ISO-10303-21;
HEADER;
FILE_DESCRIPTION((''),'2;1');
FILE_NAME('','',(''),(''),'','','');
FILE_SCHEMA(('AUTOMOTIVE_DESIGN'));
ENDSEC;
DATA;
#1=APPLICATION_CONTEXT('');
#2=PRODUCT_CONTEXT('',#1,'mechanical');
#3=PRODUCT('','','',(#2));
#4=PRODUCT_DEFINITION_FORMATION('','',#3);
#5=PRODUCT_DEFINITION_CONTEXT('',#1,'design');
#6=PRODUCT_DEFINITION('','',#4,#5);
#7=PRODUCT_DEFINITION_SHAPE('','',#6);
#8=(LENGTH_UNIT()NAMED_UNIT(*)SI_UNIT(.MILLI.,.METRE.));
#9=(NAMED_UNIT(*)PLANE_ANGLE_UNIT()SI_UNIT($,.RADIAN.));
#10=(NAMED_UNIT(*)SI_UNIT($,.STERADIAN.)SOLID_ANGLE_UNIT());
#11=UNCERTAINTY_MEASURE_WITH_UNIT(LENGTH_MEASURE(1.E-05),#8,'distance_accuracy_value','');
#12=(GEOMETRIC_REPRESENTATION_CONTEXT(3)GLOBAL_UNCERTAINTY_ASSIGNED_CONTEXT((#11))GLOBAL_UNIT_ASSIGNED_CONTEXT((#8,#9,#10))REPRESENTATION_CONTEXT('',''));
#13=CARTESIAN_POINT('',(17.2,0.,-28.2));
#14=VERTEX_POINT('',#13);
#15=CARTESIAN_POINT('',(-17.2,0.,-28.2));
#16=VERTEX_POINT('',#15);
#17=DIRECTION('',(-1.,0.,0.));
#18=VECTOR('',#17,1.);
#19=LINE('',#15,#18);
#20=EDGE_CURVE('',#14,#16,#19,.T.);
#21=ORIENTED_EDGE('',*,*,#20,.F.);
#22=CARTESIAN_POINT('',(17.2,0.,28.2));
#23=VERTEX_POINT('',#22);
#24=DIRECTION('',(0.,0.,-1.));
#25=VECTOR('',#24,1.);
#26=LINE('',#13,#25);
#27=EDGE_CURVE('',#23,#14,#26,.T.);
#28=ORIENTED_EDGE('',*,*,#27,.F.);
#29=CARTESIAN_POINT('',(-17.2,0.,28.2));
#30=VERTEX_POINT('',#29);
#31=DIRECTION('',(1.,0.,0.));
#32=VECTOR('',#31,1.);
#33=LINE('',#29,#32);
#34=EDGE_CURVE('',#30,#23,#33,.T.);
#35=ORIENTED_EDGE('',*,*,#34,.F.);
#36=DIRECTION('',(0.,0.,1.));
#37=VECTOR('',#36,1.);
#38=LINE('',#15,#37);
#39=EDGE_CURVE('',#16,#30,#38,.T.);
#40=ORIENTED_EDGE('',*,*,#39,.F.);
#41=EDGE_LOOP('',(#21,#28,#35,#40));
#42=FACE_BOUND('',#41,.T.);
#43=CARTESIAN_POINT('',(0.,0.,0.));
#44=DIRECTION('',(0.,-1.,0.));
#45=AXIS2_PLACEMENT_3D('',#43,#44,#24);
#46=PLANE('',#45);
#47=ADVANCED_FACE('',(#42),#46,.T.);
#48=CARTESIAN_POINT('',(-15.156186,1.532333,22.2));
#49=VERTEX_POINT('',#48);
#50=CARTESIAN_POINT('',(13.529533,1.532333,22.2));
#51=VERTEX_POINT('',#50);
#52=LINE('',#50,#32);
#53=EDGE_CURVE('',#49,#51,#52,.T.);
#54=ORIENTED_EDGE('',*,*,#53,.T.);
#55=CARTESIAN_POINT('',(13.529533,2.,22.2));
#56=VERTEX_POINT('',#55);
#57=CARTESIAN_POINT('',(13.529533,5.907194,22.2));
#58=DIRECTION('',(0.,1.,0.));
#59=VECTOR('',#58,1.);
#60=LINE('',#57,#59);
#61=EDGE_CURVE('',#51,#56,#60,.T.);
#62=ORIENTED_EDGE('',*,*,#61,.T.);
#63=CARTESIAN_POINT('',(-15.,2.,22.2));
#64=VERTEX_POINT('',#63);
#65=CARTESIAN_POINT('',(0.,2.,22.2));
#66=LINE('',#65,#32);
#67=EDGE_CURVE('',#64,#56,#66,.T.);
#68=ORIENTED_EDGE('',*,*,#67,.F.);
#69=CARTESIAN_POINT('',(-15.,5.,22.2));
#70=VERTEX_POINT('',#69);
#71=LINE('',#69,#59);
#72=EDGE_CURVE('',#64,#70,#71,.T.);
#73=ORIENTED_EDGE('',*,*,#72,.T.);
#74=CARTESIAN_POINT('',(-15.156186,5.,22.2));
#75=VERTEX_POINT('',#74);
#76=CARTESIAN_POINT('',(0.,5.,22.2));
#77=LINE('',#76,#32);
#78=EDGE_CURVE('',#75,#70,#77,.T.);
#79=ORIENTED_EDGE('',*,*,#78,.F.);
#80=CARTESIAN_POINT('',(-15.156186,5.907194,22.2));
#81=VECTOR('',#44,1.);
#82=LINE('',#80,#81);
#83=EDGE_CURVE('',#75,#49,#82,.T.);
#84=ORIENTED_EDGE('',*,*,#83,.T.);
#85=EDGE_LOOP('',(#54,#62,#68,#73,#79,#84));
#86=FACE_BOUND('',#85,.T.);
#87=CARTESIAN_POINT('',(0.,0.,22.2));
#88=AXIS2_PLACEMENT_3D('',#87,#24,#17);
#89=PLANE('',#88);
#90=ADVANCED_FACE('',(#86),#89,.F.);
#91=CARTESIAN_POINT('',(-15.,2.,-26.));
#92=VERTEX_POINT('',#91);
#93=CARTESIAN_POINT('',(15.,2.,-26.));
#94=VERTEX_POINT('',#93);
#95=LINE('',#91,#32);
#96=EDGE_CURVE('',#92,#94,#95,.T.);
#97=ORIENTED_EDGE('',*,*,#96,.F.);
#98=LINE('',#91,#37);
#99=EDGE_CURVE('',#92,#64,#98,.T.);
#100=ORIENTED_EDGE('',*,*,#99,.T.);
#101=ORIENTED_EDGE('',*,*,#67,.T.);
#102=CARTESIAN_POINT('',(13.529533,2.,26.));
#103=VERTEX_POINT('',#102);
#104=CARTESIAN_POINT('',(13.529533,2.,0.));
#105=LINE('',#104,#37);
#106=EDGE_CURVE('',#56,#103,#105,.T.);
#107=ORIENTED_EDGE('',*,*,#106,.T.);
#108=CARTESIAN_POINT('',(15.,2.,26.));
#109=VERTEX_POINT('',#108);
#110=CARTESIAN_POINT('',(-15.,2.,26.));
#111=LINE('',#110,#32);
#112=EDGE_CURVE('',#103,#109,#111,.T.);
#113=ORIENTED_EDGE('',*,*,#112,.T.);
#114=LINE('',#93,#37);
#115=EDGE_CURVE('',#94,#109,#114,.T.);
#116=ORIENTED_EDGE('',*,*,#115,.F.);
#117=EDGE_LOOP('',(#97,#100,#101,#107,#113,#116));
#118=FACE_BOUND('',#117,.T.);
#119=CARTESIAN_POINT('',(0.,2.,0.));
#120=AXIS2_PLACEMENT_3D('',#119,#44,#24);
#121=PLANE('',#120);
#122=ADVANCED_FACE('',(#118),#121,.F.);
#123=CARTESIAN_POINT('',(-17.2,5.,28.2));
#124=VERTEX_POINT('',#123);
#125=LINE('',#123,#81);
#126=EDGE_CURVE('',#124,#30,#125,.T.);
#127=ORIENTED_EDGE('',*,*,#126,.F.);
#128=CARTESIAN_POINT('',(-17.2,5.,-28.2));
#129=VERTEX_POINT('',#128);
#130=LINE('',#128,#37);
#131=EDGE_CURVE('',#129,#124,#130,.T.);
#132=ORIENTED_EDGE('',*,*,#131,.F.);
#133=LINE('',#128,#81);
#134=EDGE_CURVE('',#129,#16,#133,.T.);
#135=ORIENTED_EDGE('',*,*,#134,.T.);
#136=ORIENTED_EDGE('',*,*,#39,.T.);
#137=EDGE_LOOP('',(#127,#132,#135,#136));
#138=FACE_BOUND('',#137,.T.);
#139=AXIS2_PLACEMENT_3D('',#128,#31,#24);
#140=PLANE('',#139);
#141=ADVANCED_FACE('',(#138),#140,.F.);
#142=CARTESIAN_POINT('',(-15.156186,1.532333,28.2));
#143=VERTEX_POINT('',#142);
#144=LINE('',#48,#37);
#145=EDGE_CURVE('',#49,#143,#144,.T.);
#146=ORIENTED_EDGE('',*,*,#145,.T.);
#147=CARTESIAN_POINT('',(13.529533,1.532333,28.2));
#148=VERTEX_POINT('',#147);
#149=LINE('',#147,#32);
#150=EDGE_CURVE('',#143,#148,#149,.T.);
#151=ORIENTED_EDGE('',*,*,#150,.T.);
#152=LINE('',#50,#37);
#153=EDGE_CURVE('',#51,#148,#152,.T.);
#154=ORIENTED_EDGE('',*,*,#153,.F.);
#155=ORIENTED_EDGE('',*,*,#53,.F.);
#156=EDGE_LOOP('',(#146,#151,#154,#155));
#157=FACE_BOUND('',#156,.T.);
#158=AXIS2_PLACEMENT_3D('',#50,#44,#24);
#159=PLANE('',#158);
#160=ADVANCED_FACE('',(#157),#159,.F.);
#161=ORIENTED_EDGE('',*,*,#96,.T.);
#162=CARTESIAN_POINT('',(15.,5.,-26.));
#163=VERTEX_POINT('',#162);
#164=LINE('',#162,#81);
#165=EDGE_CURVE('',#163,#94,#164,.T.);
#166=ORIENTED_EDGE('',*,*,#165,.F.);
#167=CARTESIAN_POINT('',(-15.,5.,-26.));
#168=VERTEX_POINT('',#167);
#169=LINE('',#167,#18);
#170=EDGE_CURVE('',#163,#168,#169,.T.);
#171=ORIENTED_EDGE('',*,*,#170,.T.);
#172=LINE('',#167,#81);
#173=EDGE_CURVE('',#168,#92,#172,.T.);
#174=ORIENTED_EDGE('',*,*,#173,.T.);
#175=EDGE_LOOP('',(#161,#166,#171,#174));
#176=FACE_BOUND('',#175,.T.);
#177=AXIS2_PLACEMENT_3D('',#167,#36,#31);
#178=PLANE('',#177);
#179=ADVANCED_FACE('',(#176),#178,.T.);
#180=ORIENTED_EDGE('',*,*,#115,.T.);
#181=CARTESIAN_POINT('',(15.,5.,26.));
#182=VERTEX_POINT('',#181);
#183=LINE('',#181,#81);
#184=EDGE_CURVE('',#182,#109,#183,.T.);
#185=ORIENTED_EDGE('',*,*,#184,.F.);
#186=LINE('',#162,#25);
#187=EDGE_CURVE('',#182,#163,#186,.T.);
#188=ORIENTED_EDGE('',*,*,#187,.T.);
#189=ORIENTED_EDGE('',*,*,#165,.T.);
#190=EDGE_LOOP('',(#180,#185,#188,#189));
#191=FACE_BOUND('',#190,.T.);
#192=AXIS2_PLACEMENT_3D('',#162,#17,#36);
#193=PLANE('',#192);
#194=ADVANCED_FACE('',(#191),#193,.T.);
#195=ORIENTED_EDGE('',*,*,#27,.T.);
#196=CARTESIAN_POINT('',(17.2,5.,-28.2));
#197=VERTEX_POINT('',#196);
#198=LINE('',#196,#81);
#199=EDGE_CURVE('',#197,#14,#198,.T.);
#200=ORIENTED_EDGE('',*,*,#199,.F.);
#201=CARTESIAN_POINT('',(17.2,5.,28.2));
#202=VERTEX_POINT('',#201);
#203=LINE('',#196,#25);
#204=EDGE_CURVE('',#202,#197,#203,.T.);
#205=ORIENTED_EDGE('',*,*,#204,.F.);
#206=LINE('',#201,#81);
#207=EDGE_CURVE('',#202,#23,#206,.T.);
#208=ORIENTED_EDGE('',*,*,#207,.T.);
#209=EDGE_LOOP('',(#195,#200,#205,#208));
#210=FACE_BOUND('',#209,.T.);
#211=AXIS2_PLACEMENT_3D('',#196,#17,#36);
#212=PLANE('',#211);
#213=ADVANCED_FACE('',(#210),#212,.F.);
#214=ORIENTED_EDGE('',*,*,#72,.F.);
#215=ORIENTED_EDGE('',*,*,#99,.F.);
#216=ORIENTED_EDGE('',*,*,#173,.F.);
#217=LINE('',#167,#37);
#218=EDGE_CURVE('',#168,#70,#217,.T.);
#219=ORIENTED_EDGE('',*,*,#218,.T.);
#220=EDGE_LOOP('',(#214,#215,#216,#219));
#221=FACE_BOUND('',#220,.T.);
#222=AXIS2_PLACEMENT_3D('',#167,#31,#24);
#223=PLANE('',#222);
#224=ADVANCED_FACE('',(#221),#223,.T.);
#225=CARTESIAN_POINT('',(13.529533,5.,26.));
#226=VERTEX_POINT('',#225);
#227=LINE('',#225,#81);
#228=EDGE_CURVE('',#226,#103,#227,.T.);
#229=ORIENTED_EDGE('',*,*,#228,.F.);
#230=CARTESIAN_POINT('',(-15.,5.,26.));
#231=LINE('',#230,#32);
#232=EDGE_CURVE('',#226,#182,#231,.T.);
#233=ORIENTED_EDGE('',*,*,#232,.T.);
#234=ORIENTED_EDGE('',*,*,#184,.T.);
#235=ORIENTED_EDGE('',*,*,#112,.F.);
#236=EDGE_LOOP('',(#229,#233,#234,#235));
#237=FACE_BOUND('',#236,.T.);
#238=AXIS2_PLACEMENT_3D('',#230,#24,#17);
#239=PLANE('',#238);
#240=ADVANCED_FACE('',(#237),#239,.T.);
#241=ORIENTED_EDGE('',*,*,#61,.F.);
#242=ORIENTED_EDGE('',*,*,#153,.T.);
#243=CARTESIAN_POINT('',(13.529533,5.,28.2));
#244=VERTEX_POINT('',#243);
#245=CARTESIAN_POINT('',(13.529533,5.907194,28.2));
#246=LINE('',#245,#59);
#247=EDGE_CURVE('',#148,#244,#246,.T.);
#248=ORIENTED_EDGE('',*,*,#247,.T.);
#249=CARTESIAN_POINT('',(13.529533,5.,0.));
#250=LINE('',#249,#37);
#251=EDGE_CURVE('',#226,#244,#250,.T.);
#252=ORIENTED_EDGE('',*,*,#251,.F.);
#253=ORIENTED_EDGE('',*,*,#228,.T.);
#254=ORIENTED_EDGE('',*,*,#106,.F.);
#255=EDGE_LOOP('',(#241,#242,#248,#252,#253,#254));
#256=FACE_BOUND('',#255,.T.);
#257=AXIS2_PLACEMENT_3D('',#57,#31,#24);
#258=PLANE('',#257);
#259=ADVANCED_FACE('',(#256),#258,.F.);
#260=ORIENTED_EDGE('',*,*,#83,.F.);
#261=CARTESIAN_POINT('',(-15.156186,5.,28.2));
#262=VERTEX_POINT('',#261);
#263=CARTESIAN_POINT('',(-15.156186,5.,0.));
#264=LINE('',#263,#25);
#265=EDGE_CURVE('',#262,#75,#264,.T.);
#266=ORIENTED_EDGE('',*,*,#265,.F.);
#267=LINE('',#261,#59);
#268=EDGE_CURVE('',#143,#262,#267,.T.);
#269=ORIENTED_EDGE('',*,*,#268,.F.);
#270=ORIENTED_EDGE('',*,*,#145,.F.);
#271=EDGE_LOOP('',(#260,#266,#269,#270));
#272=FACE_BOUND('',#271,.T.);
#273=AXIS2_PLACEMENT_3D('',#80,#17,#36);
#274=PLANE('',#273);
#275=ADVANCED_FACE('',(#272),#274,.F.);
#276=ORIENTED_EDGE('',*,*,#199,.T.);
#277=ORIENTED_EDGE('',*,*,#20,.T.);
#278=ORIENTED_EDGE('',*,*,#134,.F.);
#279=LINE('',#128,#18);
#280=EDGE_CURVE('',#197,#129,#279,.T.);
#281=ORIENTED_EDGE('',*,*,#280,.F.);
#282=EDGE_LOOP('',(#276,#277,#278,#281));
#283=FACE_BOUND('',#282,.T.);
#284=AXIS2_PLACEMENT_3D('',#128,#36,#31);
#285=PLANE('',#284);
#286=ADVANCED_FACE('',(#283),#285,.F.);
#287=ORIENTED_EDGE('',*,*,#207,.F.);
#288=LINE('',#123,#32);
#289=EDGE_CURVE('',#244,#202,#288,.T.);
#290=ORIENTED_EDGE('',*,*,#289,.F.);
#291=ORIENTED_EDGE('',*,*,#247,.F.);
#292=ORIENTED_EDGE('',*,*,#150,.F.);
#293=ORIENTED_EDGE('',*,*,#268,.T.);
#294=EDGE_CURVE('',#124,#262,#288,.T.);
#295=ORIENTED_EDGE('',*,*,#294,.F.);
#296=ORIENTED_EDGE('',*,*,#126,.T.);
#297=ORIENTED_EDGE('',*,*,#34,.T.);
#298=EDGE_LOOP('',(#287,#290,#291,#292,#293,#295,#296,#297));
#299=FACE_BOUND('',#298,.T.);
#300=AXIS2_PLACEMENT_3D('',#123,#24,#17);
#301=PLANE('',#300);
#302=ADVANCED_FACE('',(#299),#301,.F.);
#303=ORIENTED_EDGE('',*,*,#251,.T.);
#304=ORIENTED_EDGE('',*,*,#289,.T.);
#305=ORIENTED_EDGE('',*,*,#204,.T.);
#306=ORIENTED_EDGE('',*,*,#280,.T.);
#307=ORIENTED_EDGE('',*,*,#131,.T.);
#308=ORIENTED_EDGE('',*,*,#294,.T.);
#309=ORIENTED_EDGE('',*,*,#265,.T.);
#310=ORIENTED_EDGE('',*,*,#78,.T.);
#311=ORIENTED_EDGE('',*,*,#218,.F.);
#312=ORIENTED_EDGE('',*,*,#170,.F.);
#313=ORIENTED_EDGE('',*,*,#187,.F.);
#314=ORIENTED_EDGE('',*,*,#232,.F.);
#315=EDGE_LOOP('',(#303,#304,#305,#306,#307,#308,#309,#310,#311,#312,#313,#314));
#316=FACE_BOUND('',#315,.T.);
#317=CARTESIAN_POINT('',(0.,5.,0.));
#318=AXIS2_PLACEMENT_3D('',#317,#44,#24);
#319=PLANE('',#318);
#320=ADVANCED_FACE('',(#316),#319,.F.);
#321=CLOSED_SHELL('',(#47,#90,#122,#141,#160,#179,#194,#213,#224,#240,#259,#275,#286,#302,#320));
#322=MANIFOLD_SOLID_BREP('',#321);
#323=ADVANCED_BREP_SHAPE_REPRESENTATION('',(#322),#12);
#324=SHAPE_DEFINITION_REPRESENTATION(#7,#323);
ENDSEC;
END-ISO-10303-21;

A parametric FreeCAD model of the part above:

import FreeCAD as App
import Part
import Sketcher
Q = App.Units.Quantity

doc = App.newDocument("Part")
params = doc.addObject("Spreadsheet::Sheet", "Params")
for row, (alias, value) in enumerate([
    ("sketch1_width", "30 mm"),
    ("sketch1_height", "52 mm"),
    ("pad1_length", "2 mm"),
    ("sketch2_width", "30 mm"),
    ("sketch2_height", "52 mm"),
    ("sketch2_width2", "34.4 mm"),
    ("sketch2_height2", "56.4 mm"),
    ("pad2_length", "5 mm"),
    ("pocket1_length", "6 mm"),
], start=1):
    params.set(f"A{row}", alias)
    params.set(f"B{row}", "=" + value)
    params.setAlias(f"B{row}", alias)

body = doc.addObject("PartDesign::Body", "Body")

# Sketch on XZ plane
sketch1 = body.newObject("Sketcher::SketchObject", "Sketch")
sketch1.AttachmentSupport = (doc.getObject("XZ_Plane"), [""])
sketch1.MapMode = "FlatFace"
sketch1.addGeometry(Part.LineSegment(App.Vector(-15, -26, 0), App.Vector(-15, 26, 0)), False)
sketch1.addGeometry(Part.LineSegment(App.Vector(-15, 26, 0), App.Vector(15, 26, 0)), False)
sketch1.addGeometry(Part.LineSegment(App.Vector(15, 26, 0), App.Vector(15, -26, 0)), False)
sketch1.addGeometry(Part.LineSegment(App.Vector(15, -26, 0), App.Vector(-15, -26, 0)), False)
sketch1.addConstraint(Sketcher.Constraint("Coincident", 0, 2, 1, 1))
sketch1.addConstraint(Sketcher.Constraint("Coincident", 1, 2, 2, 1))
sketch1.addConstraint(Sketcher.Constraint("Coincident", 2, 2, 3, 1))
sketch1.addConstraint(Sketcher.Constraint("Coincident", 3, 2, 0, 1))
sketch1.addConstraint(Sketcher.Constraint("Vertical", 0))
sketch1.addConstraint(Sketcher.Constraint("Horizontal", 1))
sketch1.addConstraint(Sketcher.Constraint("Vertical", 2))
sketch1.addConstraint(Sketcher.Constraint("Horizontal", 3))
sketch1.addConstraint(Sketcher.Constraint("Symmetric", 0, 2, 2, 2, -1, 1))
sketch1.addConstraint(Sketcher.Constraint("DistanceX", 1, 1, 1, 2, Q("30 mm")))
sketch1.addConstraint(Sketcher.Constraint("DistanceY", 0, 1, 0, 2, Q("52 mm")))
sketch1.setExpression("Constraints[9]", "Params.sketch1_width")
sketch1.setExpression("Constraints[10]", "Params.sketch1_height")
pad1 = body.newObject("PartDesign::Pad", "Pad")
pad1.Profile = sketch1
pad1.setExpression("Length", "Params.pad1_length")
pad1.Reversed = True

# Sketch on XZ plane
sketch2 = body.newObject("Sketcher::SketchObject", "Sketch001")
sketch2.AttachmentSupport = (doc.getObject("XZ_Plane"), [""])
sketch2.MapMode = "FlatFace"
sketch2.addGeometry(Part.LineSegment(App.Vector(-17, -28, 0), App.Vector(-17, 28, 0)), False)
sketch2.addGeometry(Part.LineSegment(App.Vector(-17, 28, 0), App.Vector(17, 28, 0)), False)
sketch2.addGeometry(Part.LineSegment(App.Vector(17, 28, 0), App.Vector(17, -28, 0)), False)
sketch2.addGeometry(Part.LineSegment(App.Vector(17, -28, 0), App.Vector(-17, -28, 0)), False)
sketch2.addGeometry(Part.LineSegment(App.Vector(15, 26, 0), App.Vector(-15, 26, 0)), False)
sketch2.addGeometry(Part.LineSegment(App.Vector(-15, 26, 0), App.Vector(-15, -26, 0)), False)
sketch2.addGeometry(Part.LineSegment(App.Vector(-15, -26, 0), App.Vector(15, -26, 0)), False)
sketch2.addGeometry(Part.LineSegment(App.Vector(15, -26, 0), App.Vector(15, 26, 0)), False)
sketch2.addConstraint(Sketcher.Constraint("Coincident", 0, 2, 1, 1))
sketch2.addConstraint(Sketcher.Constraint("Coincident", 1, 2, 2, 1))
sketch2.addConstraint(Sketcher.Constraint("Coincident", 2, 2, 3, 1))
sketch2.addConstraint(Sketcher.Constraint("Coincident", 3, 2, 0, 1))
sketch2.addConstraint(Sketcher.Constraint("Coincident", 4, 2, 5, 1))
sketch2.addConstraint(Sketcher.Constraint("Coincident", 5, 2, 6, 1))
sketch2.addConstraint(Sketcher.Constraint("Coincident", 6, 2, 7, 1))
sketch2.addConstraint(Sketcher.Constraint("Coincident", 7, 2, 4, 1))
sketch2.addConstraint(Sketcher.Constraint("Vertical", 0))
sketch2.addConstraint(Sketcher.Constraint("Horizontal", 1))
sketch2.addConstraint(Sketcher.Constraint("Vertical", 2))
sketch2.addConstraint(Sketcher.Constraint("Horizontal", 3))
sketch2.addConstraint(Sketcher.Constraint("Horizontal", 4))
sketch2.addConstraint(Sketcher.Constraint("Vertical", 5))
sketch2.addConstraint(Sketcher.Constraint("Horizontal", 6))
sketch2.addConstraint(Sketcher.Constraint("Vertical", 7))
sketch2.addConstraint(Sketcher.Constraint("Symmetric", 0, 2, 2, 2, -1, 1))
sketch2.addConstraint(Sketcher.Constraint("Symmetric", 4, 2, 6, 2, -1, 1))
sketch2.addConstraint(Sketcher.Constraint("DistanceX", 4, 2, 4, 1, Q("30 mm")))
sketch2.addConstraint(Sketcher.Constraint("DistanceY", 5, 2, 5, 1, Q("52 mm")))
sketch2.addConstraint(Sketcher.Constraint("DistanceX", 1, 1, 1, 2, Q("34.4 mm")))
sketch2.addConstraint(Sketcher.Constraint("DistanceY", 0, 1, 0, 2, Q("56.4 mm")))
sketch2.setExpression("Constraints[18]", "Params.sketch2_width")
sketch2.setExpression("Constraints[19]", "Params.sketch2_height")
sketch2.setExpression("Constraints[20]", "Params.sketch2_width2")
sketch2.setExpression("Constraints[21]", "Params.sketch2_height2")
pad2 = body.newObject("PartDesign::Pad", "Pad001")
pad2.Profile = sketch2
pad2.setExpression("Length", "Params.pad2_length")
pad2.Reversed = True

# Sketch on XY plane
sketch3 = body.newObject("Sketcher::SketchObject", "Sketch002")
sketch3.AttachmentSupport = (doc.getObject("XY_Plane"), [""])
sketch3.MapMode = "FlatFace"
sketch3.AttachmentOffset = App.Placement(App.Vector(0, 0, 28.2), App.Rotation())
sketch3.addGeometry(Part.LineSegment(App.Vector(-15.2, 5.9, 0), App.Vector(-15.2, 1.5, 0)), False)
sketch3.addGeometry(Part.LineSegment(App.Vector(-15.2, 1.5, 0), App.Vector(13.5, 1.5, 0)), False)
sketch3.addGeometry(Part.LineSegment(App.Vector(13.5, 1.5, 0), App.Vector(13.5, 5.9, 0)), False)
sketch3.addGeometry(Part.LineSegment(App.Vector(13.5, 5.9, 0), App.Vector(-15.2, 5.9, 0)), False)
sketch3.addConstraint(Sketcher.Constraint("Coincident", 0, 2, 1, 1))
sketch3.addConstraint(Sketcher.Constraint("Coincident", 1, 2, 2, 1))
sketch3.addConstraint(Sketcher.Constraint("Coincident", 2, 2, 3, 1))
sketch3.addConstraint(Sketcher.Constraint("Coincident", 3, 2, 0, 1))
sketch3.addConstraint(Sketcher.Constraint("Vertical", 0))
sketch3.addConstraint(Sketcher.Constraint("Horizontal", 1))
sketch3.addConstraint(Sketcher.Constraint("Vertical", 2))
sketch3.addConstraint(Sketcher.Constraint("Horizontal", 3))
sketch3.addConstraint(Sketcher.Constraint("DistanceX", 1, 1, 1, 2, Q("28.685719 mm")))
sketch3.addConstraint(Sketcher.Constraint("DistanceY", 0, 2, 0, 1, Q("4.37486 mm")))
sketch3.addConstraint(Sketcher.Constraint("DistanceX", 0, 2, -1, 1, Q("15.156186 mm")))
sketch3.addConstraint(Sketcher.Constraint("DistanceY", -1, 1, 0, 2, Q("1.532333 mm")))
pocket1 = body.newObject("PartDesign::Pocket", "Pocket")
pocket1.Profile = sketch3
pocket1.setExpression("Length", "Params.pocket1_length")

doc.recompute()
